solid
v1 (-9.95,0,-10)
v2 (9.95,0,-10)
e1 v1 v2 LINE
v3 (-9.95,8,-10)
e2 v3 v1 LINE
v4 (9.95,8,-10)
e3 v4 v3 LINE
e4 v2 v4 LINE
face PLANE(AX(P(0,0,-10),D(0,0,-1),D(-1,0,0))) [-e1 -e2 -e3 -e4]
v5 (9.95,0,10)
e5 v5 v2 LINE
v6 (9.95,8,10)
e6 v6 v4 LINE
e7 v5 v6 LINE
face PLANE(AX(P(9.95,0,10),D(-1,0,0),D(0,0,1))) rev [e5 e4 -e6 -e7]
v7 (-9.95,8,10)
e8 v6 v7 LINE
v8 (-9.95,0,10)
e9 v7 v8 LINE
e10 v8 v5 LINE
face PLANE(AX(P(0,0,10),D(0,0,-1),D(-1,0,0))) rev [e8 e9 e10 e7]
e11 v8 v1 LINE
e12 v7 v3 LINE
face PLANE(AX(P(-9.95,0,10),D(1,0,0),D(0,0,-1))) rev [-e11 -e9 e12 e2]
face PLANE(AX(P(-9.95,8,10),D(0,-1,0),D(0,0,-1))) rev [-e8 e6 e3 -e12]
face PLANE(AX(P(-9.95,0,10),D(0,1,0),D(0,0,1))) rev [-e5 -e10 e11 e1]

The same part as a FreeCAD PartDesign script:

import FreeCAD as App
import Part
import Sketcher

doc = App.newDocument("Part")
body = doc.addObject("PartDesign::Body", "Body")

# Sketch on XY plane
sketch1 = doc.addObject("Sketcher::SketchObject", "Sketch")
body.addObject(sketch1)
sketch1.AttachmentSupport = (doc.XY_Plane, [""])
sketch1.MapMode = "FlatFace"
sketch1.addGeometry([
    Part.LineSegment(App.Vector(-10, 8, 0), App.Vector(-10, 0, 0)),
    Part.LineSegment(App.Vector(-10, 0, 0), App.Vector(10, 0, 0)),
    Part.LineSegment(App.Vector(10, 0, 0), App.Vector(10, 8, 0)),
    Part.LineSegment(App.Vector(10, 8, 0), App.Vector(-10, 8, 0)),
], False)
sketch1.addConstraint([
    Sketcher.Constraint("Coincident", 0, 2, 1, 1),
    Sketcher.Constraint("Coincident", 1, 2, 2, 1),
    Sketcher.Constraint("Coincident", 2, 2, 3, 1),
    Sketcher.Constraint("Coincident", 3, 2, 0, 1),
    Sketcher.Constraint("Vertical", 0),
    Sketcher.Constraint("Horizontal", 1),
    Sketcher.Constraint("Vertical", 2),
    Sketcher.Constraint("Horizontal", 3),
    Sketcher.Constraint("Symmetric", 0, 2, 1, 2, -1, 1),
    Sketcher.Constraint("DistanceY", 0, 2, 0, 1, 8.0),
    Sketcher.Constraint("DistanceX", 1, 1, 1, 2, 19.9),
])
pad1 = doc.addObject("PartDesign::Pad", "Pad")
body.addObject(pad1)
pad1.Profile = sketch1
pad1.Length = 20
pad1.Midplane = True

doc.recompute()
